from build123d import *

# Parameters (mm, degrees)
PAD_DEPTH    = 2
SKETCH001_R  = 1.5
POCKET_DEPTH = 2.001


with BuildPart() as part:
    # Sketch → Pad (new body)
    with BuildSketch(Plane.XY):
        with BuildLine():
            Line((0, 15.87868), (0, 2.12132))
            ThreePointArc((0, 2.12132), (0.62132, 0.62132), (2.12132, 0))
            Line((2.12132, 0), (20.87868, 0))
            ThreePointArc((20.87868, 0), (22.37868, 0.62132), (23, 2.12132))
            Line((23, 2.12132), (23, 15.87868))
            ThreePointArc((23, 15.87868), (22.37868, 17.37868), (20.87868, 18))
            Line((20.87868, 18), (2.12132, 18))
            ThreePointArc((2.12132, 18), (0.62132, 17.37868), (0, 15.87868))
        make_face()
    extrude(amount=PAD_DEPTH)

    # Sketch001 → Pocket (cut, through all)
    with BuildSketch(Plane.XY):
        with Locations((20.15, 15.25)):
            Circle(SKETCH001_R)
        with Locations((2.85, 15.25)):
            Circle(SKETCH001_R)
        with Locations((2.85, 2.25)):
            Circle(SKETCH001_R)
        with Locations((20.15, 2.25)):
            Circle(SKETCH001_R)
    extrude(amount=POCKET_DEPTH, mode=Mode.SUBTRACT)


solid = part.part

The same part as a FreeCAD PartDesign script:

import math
import FreeCAD as App
import Part
import Sketcher

doc = App.newDocument("Part")
body = doc.addObject("PartDesign::Body", "Body")

# Sketch on XY plane
sketch1 = body.newObject("Sketcher::SketchObject", "Sketch")
sketch1.AttachmentSupport = (doc.getObject("XY_Plane"), [""])
sketch1.MapMode = "FlatFace"
sketch1.addGeometry([
    Part.LineSegment(App.Vector(0, 15.87868, 0), App.Vector(0, 2.12132, 0)),  # 0
    Part.ArcOfCircle(Part.Circle(App.Vector(2.121319, 2.121319, 0), App.Vector(0, 0, 1), 2.121319), math.radians(179.999978), math.radians(270.000022)),  # 1
    Part.LineSegment(App.Vector(2.12132, 0, 0), App.Vector(20.87868, 0, 0)),  # 2
    Part.ArcOfCircle(Part.Circle(App.Vector(20.878681, 2.121319, 0), App.Vector(0, 0, 1), 2.121319), math.radians(-90.000022), math.radians(0.000022)),  # 3
    Part.LineSegment(App.Vector(23, 2.12132, 0), App.Vector(23, 15.87868, 0)),  # 4
    Part.ArcOfCircle(Part.Circle(App.Vector(20.878681, 15.878681, 0), App.Vector(0, 0, 1), 2.121319), math.radians(-0.000022), math.radians(90.000022)),  # 5
    Part.LineSegment(App.Vector(20.87868, 18, 0), App.Vector(2.12132, 18, 0)),  # 6
    Part.ArcOfCircle(Part.Circle(App.Vector(2.121319, 15.878681, 0), App.Vector(0, 0, 1), 2.121319), math.radians(89.999978), math.radians(180.000022)),  # 7
], False)
sketch1.addConstraint([
    Sketcher.Constraint("Tangent", 0, 2, 1, 1),
    Sketcher.Constraint("Tangent", 1, 2, 2, 1),
    Sketcher.Constraint("Tangent", 2, 2, 3, 1),
    Sketcher.Constraint("Tangent", 3, 2, 4, 1),
    Sketcher.Constraint("Tangent", 4, 2, 5, 1),
    Sketcher.Constraint("Tangent", 5, 2, 6, 1),
    Sketcher.Constraint("Tangent", 6, 2, 7, 1),
    Sketcher.Constraint("Tangent", 7, 2, 0, 1),
    Sketcher.Constraint("Vertical", 0),
    Sketcher.Constraint("Horizontal", 2),
    Sketcher.Constraint("Vertical", 4),
    Sketcher.Constraint("Horizontal", 6),
    Sketcher.Constraint("Equal", 1, 3),
    Sketcher.Constraint("Equal", 3, 5),
    Sketcher.Constraint("Equal", 5, 7),
    Sketcher.Constraint("PointOnObject", 0, 2, -2),
    Sketcher.Constraint("PointOnObject", 1, 2, -1),
    Sketcher.Constraint("DistanceX", -1, 1, 3, 2, 23.0),
    Sketcher.Constraint("DistanceY", -1, 1, 5, 2, 18.0),
    Sketcher.Constraint("Radius", 1, 2.121319),
])
pad1 = body.newObject("PartDesign::Pad", "Pad")
pad1.Profile = sketch1
pad1.Length = 2

# Sketch on XY plane
sketch2 = body.newObject("Sketcher::SketchObject", "Sketch001")
sketch2.AttachmentSupport = (doc.getObject("XY_Plane"), [""])
sketch2.MapMode = "FlatFace"
sketch2.addGeometry([
    Part.Circle(App.Vector(20.15, 15.25, 0), App.Vector(0, 0, 1), 1.5),
    Part.Circle(App.Vector(2.85, 15.25, 0), App.Vector(0, 0, 1), 1.5),
    Part.Circle(App.Vector(2.85, 2.25, 0), App.Vector(0, 0, 1), 1.5),
    Part.Circle(App.Vector(20.15, 2.25, 0), App.Vector(0, 0, 1), 1.5),
], False)
sketch2.addConstraint([
    Sketcher.Constraint("Equal", 0, 1),
    Sketcher.Constraint("Equal", 1, 2),
    Sketcher.Constraint("Equal", 2, 3),
    Sketcher.Constraint("Horizontal", 0, 3, 1, 3),
    Sketcher.Constraint("Horizontal", 2, 3, 3, 3),
    Sketcher.Constraint("Vertical", 1, 3, 2, 3),
    Sketcher.Constraint("Vertical", 0, 3, 3, 3),
    Sketcher.Constraint("Diameter", 0, 3.0),
    Sketcher.Constraint("DistanceY", 2, 3, 1, 3, 13.0),
    Sketcher.Constraint("DistanceX", 1, 3, 0, 3, 17.3),
    Sketcher.Constraint("DistanceX", -1, 1, 0, 3, 20.15),
    Sketcher.Constraint("DistanceY", -1, 1, 0, 3, 15.25),
])
pocket1 = body.newObject("PartDesign::Pocket", "Pocket")
pocket1.Profile = sketch2
pocket1.Type = "ThroughAll"
pocket1.Reversed = True

doc.recompute()
